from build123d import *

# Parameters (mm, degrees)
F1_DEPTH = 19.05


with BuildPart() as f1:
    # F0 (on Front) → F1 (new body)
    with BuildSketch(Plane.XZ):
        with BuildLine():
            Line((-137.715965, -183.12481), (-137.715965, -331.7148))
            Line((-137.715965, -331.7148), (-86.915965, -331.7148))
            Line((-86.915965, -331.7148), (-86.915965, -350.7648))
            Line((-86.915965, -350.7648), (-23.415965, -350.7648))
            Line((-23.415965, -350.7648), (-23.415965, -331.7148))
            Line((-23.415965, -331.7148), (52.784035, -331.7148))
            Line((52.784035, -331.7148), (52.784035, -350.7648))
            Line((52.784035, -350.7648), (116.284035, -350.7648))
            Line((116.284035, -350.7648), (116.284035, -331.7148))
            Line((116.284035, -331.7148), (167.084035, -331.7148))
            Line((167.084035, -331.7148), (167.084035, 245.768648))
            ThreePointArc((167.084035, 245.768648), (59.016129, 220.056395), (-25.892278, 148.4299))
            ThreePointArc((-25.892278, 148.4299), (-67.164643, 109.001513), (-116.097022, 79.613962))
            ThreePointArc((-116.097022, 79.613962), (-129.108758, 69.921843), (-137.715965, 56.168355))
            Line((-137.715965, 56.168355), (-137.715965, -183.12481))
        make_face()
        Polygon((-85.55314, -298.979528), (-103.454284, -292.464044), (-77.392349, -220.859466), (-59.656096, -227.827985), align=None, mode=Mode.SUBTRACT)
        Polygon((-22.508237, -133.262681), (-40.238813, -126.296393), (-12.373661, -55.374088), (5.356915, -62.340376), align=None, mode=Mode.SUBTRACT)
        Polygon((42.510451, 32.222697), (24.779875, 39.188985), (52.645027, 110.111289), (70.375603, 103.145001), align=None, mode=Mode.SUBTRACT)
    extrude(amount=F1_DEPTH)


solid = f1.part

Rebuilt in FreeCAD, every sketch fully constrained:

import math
import FreeCAD as App
import Part
import Sketcher
Q = App.Units.Quantity


def add_polygon(sketch, points):
    """Adds a closed chain of lines whose ends are joined by coincident constraints."""
    first, n = sketch.GeometryCount, len(points)
    for a, b in zip(points, points[1:] + points[:1]):
        sketch.addGeometry(Part.LineSegment(App.Vector(*a, 0), App.Vector(*b, 0)), False)
    for i in range(n):
        sketch.addConstraint(Sketcher.Constraint("Coincident", first + i, 2, first + (i + 1) % n, 1))

doc = App.newDocument("Part")
body = doc.addObject("PartDesign::Body", "Body")

# Sketch on XZ plane
sketch1 = body.newObject("Sketcher::SketchObject", "Sketch")
sketch1.AttachmentSupport = (doc.getObject("XZ_Plane"), [""])
sketch1.MapMode = "FlatFace"
sketch1.addGeometry(Part.LineSegment(App.Vector(-137.715965, -331.7148, 0), App.Vector(-86.915965, -331.7148, 0)), False)  # 0
sketch1.addGeometry(Part.LineSegment(App.Vector(-86.915965, -331.7148, 0), App.Vector(-86.915965, -350.7648, 0)), False)  # 1
sketch1.addGeometry(Part.LineSegment(App.Vector(-86.915965, -350.7648, 0), App.Vector(-23.415965, -350.7648, 0)), False)  # 2
sketch1.addGeometry(Part.LineSegment(App.Vector(-23.415965, -350.7648, 0), App.Vector(-23.415965, -331.7148, 0)), False)  # 3
sketch1.addGeometry(Part.LineSegment(App.Vector(-23.415965, -331.7148, 0), App.Vector(52.784035, -331.7148, 0)), False)  # 4
sketch1.addGeometry(Part.LineSegment(App.Vector(52.784035, -331.7148, 0), App.Vector(52.784035, -350.7648, 0)), False)  # 5
sketch1.addGeometry(Part.LineSegment(App.Vector(52.784035, -350.7648, 0), App.Vector(116.284035, -350.7648, 0)), False)  # 6
sketch1.addGeometry(Part.LineSegment(App.Vector(116.284035, -350.7648, 0), App.Vector(116.284035, -331.7148, 0)), False)  # 7
sketch1.addGeometry(Part.LineSegment(App.Vector(116.284035, -331.7148, 0), App.Vector(167.084035, -331.7148, 0)), False)  # 8
sketch1.addGeometry(Part.LineSegment(App.Vector(167.084035, -331.7148, 0), App.Vector(167.084035, 245.768648, 0)), False)  # 9
sketch1.addGeometry(Part.ArcOfCircle(Part.Circle(App.Vector(167.084033, 5.809282, 0), App.Vector(0, 0, 1), 239.959366), math.radians(90), math.radians(143.533463)), False)  # 10
sketch1.addGeometry(Part.ArcOfCircle(Part.Circle(App.Vector(-223.636595, 314.106795, 0), App.Vector(0, 0, 1), 257.976062), math.radians(-65.363576), math.radians(-39.957417)), False)  # 11
sketch1.addGeometry(Part.ArcOfCircle(Part.Circle(App.Vector(-96.806986, 40.136725, 0), App.Vector(0, 0, 1), 43.938112), math.radians(116.041843), math.radians(158.600515)), False)  # 12
sketch1.addGeometry(Part.LineSegment(App.Vector(-137.715965, 56.168355, 0), App.Vector(-137.715965, -331.7148, 0)), False)  # 13
add_polygon(sketch1, [(-59.656096, -227.827985), (-85.55314, -298.979528), (-103.454284, -292.464044), (-77.392349, -220.859466)])  # lines 14-17
add_polygon(sketch1, [(5.356915, -62.340376), (-22.508237, -133.262681), (-40.238813, -126.296393), (-12.373661, -55.374088)])  # lines 18-21
add_polygon(sketch1, [(70.375603, 103.145001), (42.510451, 32.222697), (24.779875, 39.188985), (52.645027, 110.111289)])  # lines 22-25
sketch1.addConstraint(Sketcher.Constraint("Coincident", 0, 2, 1, 1))
sketch1.addConstraint(Sketcher.Constraint("Coincident", 1, 2, 2, 1))
sketch1.addConstraint(Sketcher.Constraint("Coincident", 2, 2, 3, 1))
sketch1.addConstraint(Sketcher.Constraint("Coincident", 3, 2, 4, 1))
sketch1.addConstraint(Sketcher.Constraint("Coincident", 4, 2, 5, 1))
sketch1.addConstraint(Sketcher.Constraint("Coincident", 5, 2, 6, 1))
sketch1.addConstraint(Sketcher.Constraint("Coincident", 6, 2, 7, 1))
sketch1.addConstraint(Sketcher.Constraint("Coincident", 7, 2, 8, 1))
sketch1.addConstraint(Sketcher.Constraint("Coincident", 8, 2, 9, 1))
sketch1.addConstraint(Sketcher.Constraint("Coincident", 9, 2, 10, 1))
sketch1.addConstraint(Sketcher.Constraint("Coincident", 10, 2, 11, 2))
sketch1.addConstraint(Sketcher.Constraint("Coincident", 11, 1, 12, 1))
sketch1.addConstraint(Sketcher.Constraint("Coincident", 12, 2, 13, 1))
sketch1.addConstraint(Sketcher.Constraint("Coincident", 13, 2, 0, 1))
sketch1.addConstraint(Sketcher.Constraint("Horizontal", 0))
sketch1.addConstraint(Sketcher.Constraint("Vertical", 1))
sketch1.addConstraint(Sketcher.Constraint("Horizontal", 2))
sketch1.addConstraint(Sketcher.Constraint("Vertical", 3))
sketch1.addConstraint(Sketcher.Constraint("Horizontal", 4))
sketch1.addConstraint(Sketcher.Constraint("Vertical", 5))
sketch1.addConstraint(Sketcher.Constraint("Horizontal", 6))
sketch1.addConstraint(Sketcher.Constraint("Vertical", 7))
sketch1.addConstraint(Sketcher.Constraint("Horizontal", 8))
sketch1.addConstraint(Sketcher.Constraint("Vertical", 9))
sketch1.addConstraint(Sketcher.Constraint("Vertical", 13))
sketch1.addConstraint(Sketcher.Constraint("DistanceX", 0, 1, 0, 2, Q("2 in")))
sketch1.addConstraint(Sketcher.Constraint("DistanceX", 4, 1, 4, 2, Q("3 in")))
sketch1.addConstraint(Sketcher.Constraint("DistanceX", 8, 1, 8, 2, Q("2 in")))
sketch1.addConstraint(Sketcher.Constraint("Distance", 16, Q("3 in")))
sketch1.addConstraint(Sketcher.Constraint("Distance", 18, Q("3 in")))
sketch1.addConstraint(Sketcher.Constraint("Distance", 20, Q("3 in")))
sketch1.addConstraint(Sketcher.Constraint("Distance", 22, Q("3 in")))
sketch1.addConstraint(Sketcher.Constraint("Distance", 24, Q("3 in")))
sketch1.addConstraint(Sketcher.Constraint("DistanceX", 2, 1, 2, 2, Q("2.5 in")))
sketch1.addConstraint(Sketcher.Constraint("DistanceX", 6, 1, 6, 2, Q("2.5 in")))
sketch1.addConstraint(Sketcher.Constraint("DistanceX", 0, 2, 10, 3, Q("9.9999999 in")))
sketch1.addConstraint(Sketcher.Constraint("DistanceY", 1, 2, 1, 1, Q("0.75 in")))
sketch1.addConstraint(Sketcher.Constraint("DistanceY", 3, 1, 3, 2, Q("0.75 in")))
sketch1.addConstraint(Sketcher.Constraint("DistanceY", 5, 2, 5, 1, Q("0.75 in")))
sketch1.addConstraint(Sketcher.Constraint("DistanceY", 7, 1, 7, 2, Q("0.75 in")))
sketch1.addConstraint(Sketcher.Constraint("Distance", 15, Q("0.75 in")))
sketch1.addConstraint(Sketcher.Constraint("Distance", 19, Q("0.75 in")))
sketch1.addConstraint(Sketcher.Constraint("Distance", 21, Q("0.75 in")))
sketch1.addConstraint(Sketcher.Constraint("Distance", 23, Q("0.75 in")))
sketch1.addConstraint(Sketcher.Constraint("Distance", 25, Q("0.75 in")))
sketch1.addConstraint(Sketcher.Constraint("Radius", 11, Q("257.976062 mm")))
sketch1.addConstraint(Sketcher.Constraint("Radius", 10, Q("239.959366 mm")))
sketch1.addConstraint(Sketcher.Constraint("Radius", 12, Q("43.938112 mm")))
sketch1.addConstraint(Sketcher.Constraint("Distance", 17, Q("19.056099 mm")))
sketch1.addConstraint(Sketcher.Constraint("DistanceY", 9, 1, 9, 2, Q("577.483448 mm")))
sketch1.addConstraint(Sketcher.Constraint("DistanceY", 0, 2, -1, 1, Q("331.7148 mm")))
sketch1.addConstraint(Sketcher.Constraint("DistanceY", -1, 1, 10, 2, Q("148.4299 mm")))
sketch1.addConstraint(Sketcher.Constraint("DistanceY", -1, 1, 25, 2, Q("103.145001 mm")))
sketch1.addConstraint(Sketcher.Constraint("DistanceX", 12, 3, 21, 2, Q("102.163901 mm")))
sketch1.addConstraint(Sketcher.Constraint("DistanceY", 21, 2, 12, 3, Q("102.477101 mm")))
sketch1.addConstraint(Sketcher.Constraint("Distance", 14, Q("75.717891 mm")))
sketch1.addConstraint(Sketcher.Constraint("DistanceY", 13, 2, 13, 1, Q("387.883155 mm")))
sketch1.addConstraint(Sketcher.Constraint("DistanceX", 14, 2, -1, 1, Q("85.55314 mm")))
sketch1.addConstraint(Sketcher.Constraint("DistanceY", 14, 2, -1, 1, Q("298.979528 mm")))
sketch1.addConstraint(Sketcher.Constraint("DistanceX", 16, 2, -1, 1, Q("77.392349 mm")))
sketch1.addConstraint(Sketcher.Constraint("DistanceY", 18, 2, -1, 1, Q("133.262681 mm")))
sketch1.addConstraint(Sketcher.Constraint("DistanceX", 20, 2, -1, 1, Q("12.373661 mm")))
sketch1.addConstraint(Sketcher.Constraint("DistanceX", -1, 1, 22, 2, Q("42.510451 mm")))
sketch1.addConstraint(Sketcher.Constraint("DistanceY", -1, 1, 24, 2, Q("110.111289 mm")))
sketch1.addConstraint(Sketcher.Constraint("DistanceX", 11, 3, 10, 3, Q("390.720628 mm")))
sketch1.addConstraint(Sketcher.Constraint("DistanceX", 12, 3, 10, 3, Q("263.891019 mm")))
sketch1.addConstraint(Sketcher.Constraint("DistanceX", 15, 2, 0, 2, Q("16.538319 mm")))
sketch1.addConstraint(Sketcher.Constraint("DistanceY", 15, 2, 16, 2, Q("71.604578 mm")))
sketch1.addConstraint(Sketcher.Constraint("DistanceY", 22, 2, 12, 3, Q("7.914028 mm")))
pad1 = body.newObject("PartDesign::Pad", "Pad")
pad1.Profile = sketch1
pad1.Length = Q("0.75 in")

doc.recompute()
